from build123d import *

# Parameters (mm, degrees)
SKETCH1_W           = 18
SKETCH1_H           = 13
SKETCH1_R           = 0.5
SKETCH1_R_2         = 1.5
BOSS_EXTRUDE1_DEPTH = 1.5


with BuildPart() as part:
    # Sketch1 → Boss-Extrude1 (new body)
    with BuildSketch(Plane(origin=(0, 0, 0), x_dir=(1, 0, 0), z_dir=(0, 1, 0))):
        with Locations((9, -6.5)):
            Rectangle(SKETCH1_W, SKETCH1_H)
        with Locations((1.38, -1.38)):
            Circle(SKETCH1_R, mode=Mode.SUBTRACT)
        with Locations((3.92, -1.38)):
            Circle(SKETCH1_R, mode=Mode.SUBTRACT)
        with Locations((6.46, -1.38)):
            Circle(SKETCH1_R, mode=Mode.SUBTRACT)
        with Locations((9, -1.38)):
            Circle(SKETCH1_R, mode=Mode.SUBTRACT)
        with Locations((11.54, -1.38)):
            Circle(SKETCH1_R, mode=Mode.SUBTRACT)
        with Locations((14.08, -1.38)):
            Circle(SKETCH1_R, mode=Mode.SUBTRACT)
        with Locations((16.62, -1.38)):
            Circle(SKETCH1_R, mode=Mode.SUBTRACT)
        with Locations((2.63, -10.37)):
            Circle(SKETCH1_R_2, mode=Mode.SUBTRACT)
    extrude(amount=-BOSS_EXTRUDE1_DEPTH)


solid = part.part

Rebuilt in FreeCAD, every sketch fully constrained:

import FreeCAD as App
import Part
import Sketcher

doc = App.newDocument("Part")
body = doc.addObject("PartDesign::Body", "Body")

# Sketch on XZ plane
sketch1 = body.newObject("Sketcher::SketchObject", "Sketch")
sketch1.AttachmentSupport = (doc.getObject("XZ_Plane"), [""])
sketch1.MapMode = "FlatFace"
sketch1.addGeometry([
    Part.LineSegment(App.Vector(0, 0, 0), App.Vector(0, 13, 0)),  # 0
    Part.LineSegment(App.Vector(0, 13, 0), App.Vector(18, 13, 0)),  # 1
    Part.LineSegment(App.Vector(18, 13, 0), App.Vector(18, 0, 0)),  # 2
    Part.LineSegment(App.Vector(18, 0, 0), App.Vector(0, 0, 0)),  # 3
    Part.Circle(App.Vector(2.6, 10.4, 0), App.Vector(0, 0, 1), 1.5),  # 4
    Part.Circle(App.Vector(1.4, 1.4, 0), App.Vector(0, 0, 1), 0.5),  # 5
    Part.Circle(App.Vector(3.9, 1.4, 0), App.Vector(0, 0, 1), 0.5),  # 6
    Part.Circle(App.Vector(6.5, 1.4, 0), App.Vector(0, 0, 1), 0.5),  # 7
    Part.Circle(App.Vector(9, 1.4, 0), App.Vector(0, 0, 1), 0.5),  # 8
    Part.Circle(App.Vector(11.5, 1.4, 0), App.Vector(0, 0, 1), 0.5),  # 9
    Part.Circle(App.Vector(14.1, 1.4, 0), App.Vector(0, 0, 1), 0.5),  # 10
    Part.Circle(App.Vector(16.6, 1.4, 0), App.Vector(0, 0, 1), 0.5),  # 11
], False)
sketch1.addConstraint([
    Sketcher.Constraint("Coincident", 0, 2, 1, 1),
    Sketcher.Constraint("Coincident", 1, 2, 2, 1),
    Sketcher.Constraint("Coincident", 2, 2, 3, 1),
    Sketcher.Constraint("Coincident", 3, 2, 0, 1),
    Sketcher.Constraint("Vertical", 0),
    Sketcher.Constraint("Horizontal", 1),
    Sketcher.Constraint("Vertical", 2),
    Sketcher.Constraint("Horizontal", 3),
    Sketcher.Constraint("Coincident", 3, 2, -1, 1),
    Sketcher.Constraint("Equal", 5, 6),
    Sketcher.Constraint("Equal", 6, 7),
    Sketcher.Constraint("Equal", 7, 8),
    Sketcher.Constraint("Equal", 8, 9),
    Sketcher.Constraint("Equal", 9, 10),
    Sketcher.Constraint("Equal", 10, 11),
    Sketcher.Constraint("Horizontal", 5, 3, 6, 3),
    Sketcher.Constraint("Horizontal", 6, 3, 7, 3),
    Sketcher.Constraint("Horizontal", 7, 3, 8, 3),
    Sketcher.Constraint("Horizontal", 8, 3, 9, 3),
    Sketcher.Constraint("Horizontal", 9, 3, 10, 3),
    Sketcher.Constraint("Horizontal", 10, 3, 11, 3),
    Sketcher.Constraint("Diameter", 4, 3.0),
    Sketcher.Constraint("Diameter", 5, 1.0),
    Sketcher.Constraint("DistanceX", 1, 1, 1, 2, 18.0),
    Sketcher.Constraint("DistanceY", 0, 1, 0, 2, 13.0),
    Sketcher.Constraint("DistanceX", -1, 1, 8, 3, 9.0),
    Sketcher.Constraint("DistanceX", 5, 3, 10, 3, 12.7),
    Sketcher.Constraint("DistanceX", 6, 3, 11, 3, 12.7),
    Sketcher.Constraint("DistanceX", -1, 1, 4, 3, 2.63),
    Sketcher.Constraint("DistanceY", -1, 1, 4, 3, 10.37),
    Sketcher.Constraint("DistanceX", -1, 1, 5, 3, 1.38),
    Sketcher.Constraint("DistanceY", -1, 1, 5, 3, 1.38),
    Sketcher.Constraint("DistanceX", -1, 1, 6, 3, 3.92),
    Sketcher.Constraint("DistanceX", -1, 1, 7, 3, 6.46),
    Sketcher.Constraint("DistanceX", -1, 1, 9, 3, 11.54),
])
pad1 = body.newObject("PartDesign::Pad", "Pad")
pad1.Profile = sketch1
pad1.Length = 1.5

doc.recompute()
